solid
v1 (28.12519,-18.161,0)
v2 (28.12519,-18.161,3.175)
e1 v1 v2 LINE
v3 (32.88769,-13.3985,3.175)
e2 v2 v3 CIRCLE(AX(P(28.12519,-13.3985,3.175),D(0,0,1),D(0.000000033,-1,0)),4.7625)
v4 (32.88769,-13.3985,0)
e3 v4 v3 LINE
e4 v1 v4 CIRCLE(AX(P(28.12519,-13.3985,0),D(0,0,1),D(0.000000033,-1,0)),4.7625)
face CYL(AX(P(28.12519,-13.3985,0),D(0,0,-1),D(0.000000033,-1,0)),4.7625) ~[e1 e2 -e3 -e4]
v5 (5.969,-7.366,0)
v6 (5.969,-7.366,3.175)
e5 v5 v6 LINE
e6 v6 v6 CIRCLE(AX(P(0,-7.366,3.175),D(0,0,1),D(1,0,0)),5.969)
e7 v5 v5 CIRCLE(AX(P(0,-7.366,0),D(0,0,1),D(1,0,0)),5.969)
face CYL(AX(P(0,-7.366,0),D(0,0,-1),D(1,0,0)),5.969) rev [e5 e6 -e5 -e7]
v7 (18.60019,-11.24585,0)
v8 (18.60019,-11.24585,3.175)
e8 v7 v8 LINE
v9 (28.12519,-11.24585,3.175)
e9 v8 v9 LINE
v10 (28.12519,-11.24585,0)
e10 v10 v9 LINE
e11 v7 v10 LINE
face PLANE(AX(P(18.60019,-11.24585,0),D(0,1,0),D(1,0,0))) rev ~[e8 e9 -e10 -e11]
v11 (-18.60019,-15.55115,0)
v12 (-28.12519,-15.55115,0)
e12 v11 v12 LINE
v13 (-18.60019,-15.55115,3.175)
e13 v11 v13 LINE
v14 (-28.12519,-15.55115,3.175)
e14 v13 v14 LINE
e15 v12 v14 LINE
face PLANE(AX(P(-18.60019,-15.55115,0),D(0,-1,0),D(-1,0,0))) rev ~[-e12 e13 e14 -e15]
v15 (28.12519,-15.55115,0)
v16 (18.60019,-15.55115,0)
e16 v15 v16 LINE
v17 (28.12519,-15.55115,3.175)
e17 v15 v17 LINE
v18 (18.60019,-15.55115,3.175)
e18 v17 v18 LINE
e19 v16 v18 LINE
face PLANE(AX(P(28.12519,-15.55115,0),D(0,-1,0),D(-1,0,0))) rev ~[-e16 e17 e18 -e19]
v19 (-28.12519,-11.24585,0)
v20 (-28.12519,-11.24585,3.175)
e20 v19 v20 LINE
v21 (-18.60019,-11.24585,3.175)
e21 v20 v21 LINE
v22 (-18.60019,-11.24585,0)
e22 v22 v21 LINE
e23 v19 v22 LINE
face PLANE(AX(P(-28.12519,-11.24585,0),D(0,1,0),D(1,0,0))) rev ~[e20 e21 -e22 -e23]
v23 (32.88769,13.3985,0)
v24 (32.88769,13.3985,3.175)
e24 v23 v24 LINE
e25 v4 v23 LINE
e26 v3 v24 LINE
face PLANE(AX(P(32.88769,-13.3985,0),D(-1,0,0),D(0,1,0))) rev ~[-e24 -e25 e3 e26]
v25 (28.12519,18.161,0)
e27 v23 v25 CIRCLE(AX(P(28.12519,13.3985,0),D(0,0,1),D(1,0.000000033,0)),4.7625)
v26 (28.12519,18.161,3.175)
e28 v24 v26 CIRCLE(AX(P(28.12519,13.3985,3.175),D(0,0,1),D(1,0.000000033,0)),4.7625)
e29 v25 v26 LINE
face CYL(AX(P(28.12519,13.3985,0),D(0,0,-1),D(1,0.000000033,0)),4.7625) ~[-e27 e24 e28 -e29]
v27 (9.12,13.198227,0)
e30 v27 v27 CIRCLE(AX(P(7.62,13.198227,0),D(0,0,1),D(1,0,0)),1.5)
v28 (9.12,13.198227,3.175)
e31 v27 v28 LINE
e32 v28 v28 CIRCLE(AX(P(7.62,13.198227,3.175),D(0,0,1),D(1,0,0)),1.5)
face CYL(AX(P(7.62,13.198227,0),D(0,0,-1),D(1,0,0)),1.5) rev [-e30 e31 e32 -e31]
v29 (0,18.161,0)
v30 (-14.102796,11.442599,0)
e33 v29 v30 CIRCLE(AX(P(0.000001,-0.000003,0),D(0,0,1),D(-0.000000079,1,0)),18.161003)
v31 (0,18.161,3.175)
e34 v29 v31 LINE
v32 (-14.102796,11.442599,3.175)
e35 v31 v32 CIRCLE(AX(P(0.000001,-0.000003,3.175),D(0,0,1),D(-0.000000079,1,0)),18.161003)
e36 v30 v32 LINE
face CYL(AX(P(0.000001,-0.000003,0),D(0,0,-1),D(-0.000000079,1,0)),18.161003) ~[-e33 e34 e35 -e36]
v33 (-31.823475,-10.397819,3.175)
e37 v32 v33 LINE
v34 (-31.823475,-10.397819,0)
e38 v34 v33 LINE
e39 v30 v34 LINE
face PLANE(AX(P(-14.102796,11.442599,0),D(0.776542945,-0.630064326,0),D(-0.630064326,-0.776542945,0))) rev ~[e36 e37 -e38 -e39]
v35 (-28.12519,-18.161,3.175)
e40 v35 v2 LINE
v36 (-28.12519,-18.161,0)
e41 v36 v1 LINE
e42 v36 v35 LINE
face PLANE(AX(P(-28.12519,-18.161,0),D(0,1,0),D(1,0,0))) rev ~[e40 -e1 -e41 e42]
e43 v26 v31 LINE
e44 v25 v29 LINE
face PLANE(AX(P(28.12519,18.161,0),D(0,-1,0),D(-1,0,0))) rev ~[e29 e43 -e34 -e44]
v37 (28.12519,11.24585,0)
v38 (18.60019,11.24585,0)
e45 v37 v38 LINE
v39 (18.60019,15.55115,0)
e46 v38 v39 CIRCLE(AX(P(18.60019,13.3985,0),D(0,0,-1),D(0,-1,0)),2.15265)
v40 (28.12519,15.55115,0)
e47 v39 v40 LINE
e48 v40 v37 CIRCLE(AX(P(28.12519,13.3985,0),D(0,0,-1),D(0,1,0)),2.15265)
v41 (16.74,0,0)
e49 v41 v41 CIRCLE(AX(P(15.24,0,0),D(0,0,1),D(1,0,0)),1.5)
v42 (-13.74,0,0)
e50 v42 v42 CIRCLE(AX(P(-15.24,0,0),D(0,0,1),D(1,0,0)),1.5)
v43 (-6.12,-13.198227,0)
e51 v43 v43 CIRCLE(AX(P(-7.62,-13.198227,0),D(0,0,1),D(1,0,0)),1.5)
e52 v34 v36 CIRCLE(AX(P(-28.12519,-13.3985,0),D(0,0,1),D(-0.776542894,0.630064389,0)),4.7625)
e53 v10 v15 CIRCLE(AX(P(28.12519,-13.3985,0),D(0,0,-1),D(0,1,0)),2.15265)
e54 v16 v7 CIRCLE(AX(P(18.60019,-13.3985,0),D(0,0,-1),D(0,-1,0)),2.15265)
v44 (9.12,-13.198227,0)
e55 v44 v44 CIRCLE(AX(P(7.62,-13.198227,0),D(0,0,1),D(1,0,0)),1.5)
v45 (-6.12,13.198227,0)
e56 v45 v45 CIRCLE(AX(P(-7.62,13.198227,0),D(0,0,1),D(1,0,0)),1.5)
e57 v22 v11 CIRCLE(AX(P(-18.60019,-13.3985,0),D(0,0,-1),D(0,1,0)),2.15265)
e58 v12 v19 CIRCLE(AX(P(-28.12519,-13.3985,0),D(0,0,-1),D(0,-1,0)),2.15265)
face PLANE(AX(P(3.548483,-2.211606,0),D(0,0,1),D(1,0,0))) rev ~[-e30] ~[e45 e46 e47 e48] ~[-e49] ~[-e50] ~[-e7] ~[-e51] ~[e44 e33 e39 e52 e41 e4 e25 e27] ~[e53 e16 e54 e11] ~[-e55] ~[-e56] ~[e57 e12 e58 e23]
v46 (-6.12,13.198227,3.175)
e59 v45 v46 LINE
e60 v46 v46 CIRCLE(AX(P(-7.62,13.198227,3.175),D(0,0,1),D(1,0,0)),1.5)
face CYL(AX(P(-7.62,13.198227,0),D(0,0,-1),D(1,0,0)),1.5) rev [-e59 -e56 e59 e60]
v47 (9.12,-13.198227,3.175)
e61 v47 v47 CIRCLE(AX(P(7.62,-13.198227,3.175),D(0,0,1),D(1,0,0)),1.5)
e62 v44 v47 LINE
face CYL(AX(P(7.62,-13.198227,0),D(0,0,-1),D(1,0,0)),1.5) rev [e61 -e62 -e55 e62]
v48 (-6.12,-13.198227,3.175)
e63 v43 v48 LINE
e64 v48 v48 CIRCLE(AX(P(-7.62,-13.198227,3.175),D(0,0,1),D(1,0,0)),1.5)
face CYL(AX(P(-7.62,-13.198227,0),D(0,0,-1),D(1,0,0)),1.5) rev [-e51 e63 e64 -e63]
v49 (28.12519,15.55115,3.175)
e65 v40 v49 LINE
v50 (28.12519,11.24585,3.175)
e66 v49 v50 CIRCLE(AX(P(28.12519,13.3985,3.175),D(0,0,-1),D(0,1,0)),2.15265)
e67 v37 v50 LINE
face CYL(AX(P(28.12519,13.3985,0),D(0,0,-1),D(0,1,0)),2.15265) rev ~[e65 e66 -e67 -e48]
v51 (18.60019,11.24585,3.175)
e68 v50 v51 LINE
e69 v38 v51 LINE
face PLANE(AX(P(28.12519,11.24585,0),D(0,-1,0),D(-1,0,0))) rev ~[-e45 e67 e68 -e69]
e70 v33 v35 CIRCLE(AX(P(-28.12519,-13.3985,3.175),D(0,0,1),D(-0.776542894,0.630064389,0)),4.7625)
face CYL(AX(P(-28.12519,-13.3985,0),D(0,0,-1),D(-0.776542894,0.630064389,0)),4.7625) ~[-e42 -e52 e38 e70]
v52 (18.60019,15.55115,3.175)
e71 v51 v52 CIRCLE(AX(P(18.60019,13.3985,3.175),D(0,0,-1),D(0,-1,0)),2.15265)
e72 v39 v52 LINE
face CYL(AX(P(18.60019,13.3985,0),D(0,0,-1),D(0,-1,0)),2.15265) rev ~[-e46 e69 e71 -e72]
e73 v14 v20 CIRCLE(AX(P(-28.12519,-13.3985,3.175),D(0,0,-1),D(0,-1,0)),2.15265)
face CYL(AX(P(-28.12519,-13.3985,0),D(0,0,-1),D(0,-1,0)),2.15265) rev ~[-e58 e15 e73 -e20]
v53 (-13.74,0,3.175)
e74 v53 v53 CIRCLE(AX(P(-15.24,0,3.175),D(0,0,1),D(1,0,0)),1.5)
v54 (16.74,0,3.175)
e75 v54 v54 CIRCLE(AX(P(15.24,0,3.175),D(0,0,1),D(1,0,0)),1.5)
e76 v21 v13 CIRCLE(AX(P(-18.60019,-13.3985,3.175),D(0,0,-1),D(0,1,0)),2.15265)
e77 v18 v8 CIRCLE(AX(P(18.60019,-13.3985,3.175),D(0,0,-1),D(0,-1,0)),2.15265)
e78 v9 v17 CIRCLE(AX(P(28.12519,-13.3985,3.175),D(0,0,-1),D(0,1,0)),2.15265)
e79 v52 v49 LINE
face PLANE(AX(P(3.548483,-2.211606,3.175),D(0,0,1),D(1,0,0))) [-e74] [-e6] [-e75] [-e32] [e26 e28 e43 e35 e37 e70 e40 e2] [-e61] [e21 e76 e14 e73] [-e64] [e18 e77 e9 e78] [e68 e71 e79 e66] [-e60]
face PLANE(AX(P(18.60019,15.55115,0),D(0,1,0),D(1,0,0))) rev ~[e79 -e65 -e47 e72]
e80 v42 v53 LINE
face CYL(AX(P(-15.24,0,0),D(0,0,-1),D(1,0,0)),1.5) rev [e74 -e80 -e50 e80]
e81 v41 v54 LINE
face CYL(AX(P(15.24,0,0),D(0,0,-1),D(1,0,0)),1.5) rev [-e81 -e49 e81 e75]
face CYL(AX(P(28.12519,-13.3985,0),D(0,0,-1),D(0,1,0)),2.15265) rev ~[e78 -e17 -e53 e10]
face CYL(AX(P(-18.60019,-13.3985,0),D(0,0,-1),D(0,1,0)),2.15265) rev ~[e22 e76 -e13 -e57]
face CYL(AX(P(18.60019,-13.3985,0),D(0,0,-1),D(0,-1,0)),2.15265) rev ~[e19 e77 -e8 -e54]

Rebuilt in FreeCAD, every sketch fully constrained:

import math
import FreeCAD as App
import Part
import Sketcher

V = App.Vector
Q = App.Units.Quantity

doc = App.newDocument("Part")
body = doc.addObject("PartDesign::Body", "Body")

sketch1 = body.newObject("Sketcher::SketchObject", "Sketch")
sketch1.AttachmentSupport = (doc.getObject("XY_Plane"), [""])
sketch1.MapMode = "FlatFace"
sketch1.addGeometry([
    Part.LineSegment(V(28.1, 18.2, 0), V(0, 18.2, 0)),
    Part.ArcOfCircle(Part.Circle(V(0, 0, 0), V(0, 0, 1), 18.2), math.radians(90), math.radians(141)),
    Part.LineSegment(V(-14.1, 11.4, 0), V(-31.8, -10.4, 0)),
    Part.ArcOfCircle(Part.Circle(V(-28.1, -13.4, 0), V(0, 0, 1), 4.8), math.radians(141), math.radians(270)),
    Part.LineSegment(V(-28.1, -18.2, 0), V(28.1, -18.2, 0)),
    Part.ArcOfCircle(Part.Circle(V(28.1, -13.4, 0), V(0, 0, 1), 4.8), math.radians(-90), math.radians(0)),
    Part.LineSegment(V(32.9, -13.4, 0), V(32.9, 13.4, 0)),
    Part.ArcOfCircle(Part.Circle(V(28.1, 13.4, 0), V(0, 0, 1), 4.8), math.radians(0), math.radians(90)),
    Part.LineSegment(V(-18.6, -15.6, 0), V(-28.1, -15.6, 0)),
    Part.ArcOfCircle(Part.Circle(V(-28.1, -13.4, 0), V(0, 0, 1), 2.2), math.radians(90), math.radians(270)),
    Part.LineSegment(V(-28.1, -11.2, 0), V(-18.6, -11.2, 0)),
    Part.ArcOfCircle(Part.Circle(V(-18.6, -13.4, 0), V(0, 0, 1), 2.2), math.radians(-90), math.radians(90)),
    Part.Circle(V(-7.6, -13.2, 0), V(0, 0, 1), 1.5),
    Part.Circle(V(7.6, -13.2, 0), V(0, 0, 1), 1.5),
    Part.LineSegment(V(18.6, -11.2, 0), V(28.1, -11.2, 0)),
    Part.ArcOfCircle(Part.Circle(V(28.1, -13.4, 0), V(0, 0, 1), 2.2), math.radians(-90), math.radians(90)),
    Part.LineSegment(V(28.1, -15.6, 0), V(18.6, -15.6, 0)),
    Part.ArcOfCircle(Part.Circle(V(18.6, -13.4, 0), V(0, 0, 1), 2.2), math.radians(90), math.radians(270)),
    Part.Circle(V(0, -7.4, 0), V(0, 0, 1), 6),
    Part.Circle(V(-15.2, 0, 0), V(0, 0, 1), 1.5),
    Part.Circle(V(-7.6, 13.2, 0), V(0, 0, 1), 1.5),
    Part.Circle(V(15.2, 0, 0), V(0, 0, 1), 1.5),
    Part.Circle(V(7.6, 13.2, 0), V(0, 0, 1), 1.5),
    Part.LineSegment(V(18.6, 15.6, 0), V(28.1, 15.6, 0)),
    Part.ArcOfCircle(Part.Circle(V(28.1, 13.4, 0), V(0, 0, 1), 2.2), math.radians(-90), math.radians(90)),
    Part.LineSegment(V(28.1, 11.2, 0), V(18.6, 11.2, 0)),
    Part.ArcOfCircle(Part.Circle(V(18.6, 13.4, 0), V(0, 0, 1), 2.2), math.radians(90), math.radians(270)),
], False)
sketch1.addConstraint([
    Sketcher.Constraint("Tangent", 0, 2, 1, 1),
    Sketcher.Constraint("Tangent", 1, 2, 2, 1),
    Sketcher.Constraint("Tangent", 2, 2, 3, 1),
    Sketcher.Constraint("Tangent", 3, 2, 4, 1),
    Sketcher.Constraint("Tangent", 4, 2, 5, 1),
    Sketcher.Constraint("Tangent", 5, 2, 6, 1),
    Sketcher.Constraint("Tangent", 6, 2, 7, 1),
    Sketcher.Constraint("Tangent", 7, 2, 0, 1),
    Sketcher.Constraint("Tangent", 8, 2, 9, 2),
    Sketcher.Constraint("Tangent", 9, 1, 10, 1),
    Sketcher.Constraint("Tangent", 10, 2, 11, 2),
    Sketcher.Constraint("Tangent", 11, 1, 8, 1),
    Sketcher.Constraint("Tangent", 14, 2, 15, 2),
    Sketcher.Constraint("Tangent", 15, 1, 16, 1),
    Sketcher.Constraint("Tangent", 16, 2, 17, 2),
    Sketcher.Constraint("Tangent", 17, 1, 14, 1),
    Sketcher.Constraint("Tangent", 23, 2, 24, 2),
    Sketcher.Constraint("Tangent", 24, 1, 25, 1),
    Sketcher.Constraint("Tangent", 25, 2, 26, 2),
    Sketcher.Constraint("Tangent", 26, 1, 23, 1),
    Sketcher.Constraint("Horizontal", 0),
    Sketcher.Constraint("Horizontal", 4),
    Sketcher.Constraint("Vertical", 6),
    Sketcher.Constraint("Horizontal", 8),
    Sketcher.Constraint("Horizontal", 10),
    Sketcher.Constraint("Horizontal", 14),
    Sketcher.Constraint("Horizontal", 16),
    Sketcher.Constraint("Horizontal", 23),
    Sketcher.Constraint("Horizontal", 25),
    Sketcher.Constraint("Coincident", 1, 3, -1, 1),
    Sketcher.Constraint("Coincident", 9, 3, 3, 3),
    Sketcher.Constraint("Coincident", 15, 3, 5, 3),
    Sketcher.Constraint("Coincident", 24, 3, 7, 3),
    Sketcher.Constraint("Equal", 3, 5),
    Sketcher.Constraint("Equal", 5, 7),
    Sketcher.Constraint("Equal", 12, 13),
    Sketcher.Constraint("Equal", 11, 15),
    Sketcher.Constraint("Equal", 13, 19),
    Sketcher.Constraint("Equal", 19, 20),
    Sketcher.Constraint("Equal", 20, 21),
    Sketcher.Constraint("Equal", 21, 22),
    Sketcher.Constraint("Equal", 17, 24),
    Sketcher.Constraint("Symmetric", 3, 3, 7, 3, -1, 1),
    Sketcher.Constraint("Symmetric", 13, 3, 20, 3, -1, 1),
    Sketcher.Constraint("Symmetric", 19, 3, 21, 3, -1, 1),
    Sketcher.Constraint("Symmetric", 12, 3, 22, 3, -1, 1),
    Sketcher.Constraint("Symmetric", 12, 3, 13, 3, -2),
    Sketcher.Constraint("PointOnObject", 18, 3, -2),
    Sketcher.Constraint("PointOnObject", 19, 3, -1),
    Sketcher.Constraint("Vertical", 17, 3, 26, 3),
    Sketcher.Constraint("Equal", 10, 14),
    Sketcher.Constraint("Diameter", 18, Q("0.47 in")),
    Sketcher.Constraint("Radius", 1, Q("0.7150001 in")),
    Sketcher.Constraint("Radius", 3, Q("0.1875 in")),
    Sketcher.Constraint("DistanceX", 12, 3, -1, 1, Q("0.3 in")),
    Sketcher.Constraint("DistanceX", 19, 3, -1, 1, Q("0.6 in")),
    Sketcher.Constraint("Diameter", 12, 3.0),
    Sketcher.Constraint("DistanceX", 8, 2, 8, 1, Q("0.375 in")),
    Sketcher.Constraint("DistanceY", 18, 3, -1, 1, Q("0.29 in")),
    Sketcher.Constraint("Radius", 9, 2.15265),
    Sketcher.Constraint("DistanceX", 0, 2, 0, 1, 28.12519),
    Sketcher.Constraint("DistanceY", 1, 3, 20, 3, 13.19823),
])
pad1 = body.newObject("PartDesign::Pad", "Pad")
pad1.Profile = sketch1
pad1.Length = Q("0.125 in")

doc.recompute()
